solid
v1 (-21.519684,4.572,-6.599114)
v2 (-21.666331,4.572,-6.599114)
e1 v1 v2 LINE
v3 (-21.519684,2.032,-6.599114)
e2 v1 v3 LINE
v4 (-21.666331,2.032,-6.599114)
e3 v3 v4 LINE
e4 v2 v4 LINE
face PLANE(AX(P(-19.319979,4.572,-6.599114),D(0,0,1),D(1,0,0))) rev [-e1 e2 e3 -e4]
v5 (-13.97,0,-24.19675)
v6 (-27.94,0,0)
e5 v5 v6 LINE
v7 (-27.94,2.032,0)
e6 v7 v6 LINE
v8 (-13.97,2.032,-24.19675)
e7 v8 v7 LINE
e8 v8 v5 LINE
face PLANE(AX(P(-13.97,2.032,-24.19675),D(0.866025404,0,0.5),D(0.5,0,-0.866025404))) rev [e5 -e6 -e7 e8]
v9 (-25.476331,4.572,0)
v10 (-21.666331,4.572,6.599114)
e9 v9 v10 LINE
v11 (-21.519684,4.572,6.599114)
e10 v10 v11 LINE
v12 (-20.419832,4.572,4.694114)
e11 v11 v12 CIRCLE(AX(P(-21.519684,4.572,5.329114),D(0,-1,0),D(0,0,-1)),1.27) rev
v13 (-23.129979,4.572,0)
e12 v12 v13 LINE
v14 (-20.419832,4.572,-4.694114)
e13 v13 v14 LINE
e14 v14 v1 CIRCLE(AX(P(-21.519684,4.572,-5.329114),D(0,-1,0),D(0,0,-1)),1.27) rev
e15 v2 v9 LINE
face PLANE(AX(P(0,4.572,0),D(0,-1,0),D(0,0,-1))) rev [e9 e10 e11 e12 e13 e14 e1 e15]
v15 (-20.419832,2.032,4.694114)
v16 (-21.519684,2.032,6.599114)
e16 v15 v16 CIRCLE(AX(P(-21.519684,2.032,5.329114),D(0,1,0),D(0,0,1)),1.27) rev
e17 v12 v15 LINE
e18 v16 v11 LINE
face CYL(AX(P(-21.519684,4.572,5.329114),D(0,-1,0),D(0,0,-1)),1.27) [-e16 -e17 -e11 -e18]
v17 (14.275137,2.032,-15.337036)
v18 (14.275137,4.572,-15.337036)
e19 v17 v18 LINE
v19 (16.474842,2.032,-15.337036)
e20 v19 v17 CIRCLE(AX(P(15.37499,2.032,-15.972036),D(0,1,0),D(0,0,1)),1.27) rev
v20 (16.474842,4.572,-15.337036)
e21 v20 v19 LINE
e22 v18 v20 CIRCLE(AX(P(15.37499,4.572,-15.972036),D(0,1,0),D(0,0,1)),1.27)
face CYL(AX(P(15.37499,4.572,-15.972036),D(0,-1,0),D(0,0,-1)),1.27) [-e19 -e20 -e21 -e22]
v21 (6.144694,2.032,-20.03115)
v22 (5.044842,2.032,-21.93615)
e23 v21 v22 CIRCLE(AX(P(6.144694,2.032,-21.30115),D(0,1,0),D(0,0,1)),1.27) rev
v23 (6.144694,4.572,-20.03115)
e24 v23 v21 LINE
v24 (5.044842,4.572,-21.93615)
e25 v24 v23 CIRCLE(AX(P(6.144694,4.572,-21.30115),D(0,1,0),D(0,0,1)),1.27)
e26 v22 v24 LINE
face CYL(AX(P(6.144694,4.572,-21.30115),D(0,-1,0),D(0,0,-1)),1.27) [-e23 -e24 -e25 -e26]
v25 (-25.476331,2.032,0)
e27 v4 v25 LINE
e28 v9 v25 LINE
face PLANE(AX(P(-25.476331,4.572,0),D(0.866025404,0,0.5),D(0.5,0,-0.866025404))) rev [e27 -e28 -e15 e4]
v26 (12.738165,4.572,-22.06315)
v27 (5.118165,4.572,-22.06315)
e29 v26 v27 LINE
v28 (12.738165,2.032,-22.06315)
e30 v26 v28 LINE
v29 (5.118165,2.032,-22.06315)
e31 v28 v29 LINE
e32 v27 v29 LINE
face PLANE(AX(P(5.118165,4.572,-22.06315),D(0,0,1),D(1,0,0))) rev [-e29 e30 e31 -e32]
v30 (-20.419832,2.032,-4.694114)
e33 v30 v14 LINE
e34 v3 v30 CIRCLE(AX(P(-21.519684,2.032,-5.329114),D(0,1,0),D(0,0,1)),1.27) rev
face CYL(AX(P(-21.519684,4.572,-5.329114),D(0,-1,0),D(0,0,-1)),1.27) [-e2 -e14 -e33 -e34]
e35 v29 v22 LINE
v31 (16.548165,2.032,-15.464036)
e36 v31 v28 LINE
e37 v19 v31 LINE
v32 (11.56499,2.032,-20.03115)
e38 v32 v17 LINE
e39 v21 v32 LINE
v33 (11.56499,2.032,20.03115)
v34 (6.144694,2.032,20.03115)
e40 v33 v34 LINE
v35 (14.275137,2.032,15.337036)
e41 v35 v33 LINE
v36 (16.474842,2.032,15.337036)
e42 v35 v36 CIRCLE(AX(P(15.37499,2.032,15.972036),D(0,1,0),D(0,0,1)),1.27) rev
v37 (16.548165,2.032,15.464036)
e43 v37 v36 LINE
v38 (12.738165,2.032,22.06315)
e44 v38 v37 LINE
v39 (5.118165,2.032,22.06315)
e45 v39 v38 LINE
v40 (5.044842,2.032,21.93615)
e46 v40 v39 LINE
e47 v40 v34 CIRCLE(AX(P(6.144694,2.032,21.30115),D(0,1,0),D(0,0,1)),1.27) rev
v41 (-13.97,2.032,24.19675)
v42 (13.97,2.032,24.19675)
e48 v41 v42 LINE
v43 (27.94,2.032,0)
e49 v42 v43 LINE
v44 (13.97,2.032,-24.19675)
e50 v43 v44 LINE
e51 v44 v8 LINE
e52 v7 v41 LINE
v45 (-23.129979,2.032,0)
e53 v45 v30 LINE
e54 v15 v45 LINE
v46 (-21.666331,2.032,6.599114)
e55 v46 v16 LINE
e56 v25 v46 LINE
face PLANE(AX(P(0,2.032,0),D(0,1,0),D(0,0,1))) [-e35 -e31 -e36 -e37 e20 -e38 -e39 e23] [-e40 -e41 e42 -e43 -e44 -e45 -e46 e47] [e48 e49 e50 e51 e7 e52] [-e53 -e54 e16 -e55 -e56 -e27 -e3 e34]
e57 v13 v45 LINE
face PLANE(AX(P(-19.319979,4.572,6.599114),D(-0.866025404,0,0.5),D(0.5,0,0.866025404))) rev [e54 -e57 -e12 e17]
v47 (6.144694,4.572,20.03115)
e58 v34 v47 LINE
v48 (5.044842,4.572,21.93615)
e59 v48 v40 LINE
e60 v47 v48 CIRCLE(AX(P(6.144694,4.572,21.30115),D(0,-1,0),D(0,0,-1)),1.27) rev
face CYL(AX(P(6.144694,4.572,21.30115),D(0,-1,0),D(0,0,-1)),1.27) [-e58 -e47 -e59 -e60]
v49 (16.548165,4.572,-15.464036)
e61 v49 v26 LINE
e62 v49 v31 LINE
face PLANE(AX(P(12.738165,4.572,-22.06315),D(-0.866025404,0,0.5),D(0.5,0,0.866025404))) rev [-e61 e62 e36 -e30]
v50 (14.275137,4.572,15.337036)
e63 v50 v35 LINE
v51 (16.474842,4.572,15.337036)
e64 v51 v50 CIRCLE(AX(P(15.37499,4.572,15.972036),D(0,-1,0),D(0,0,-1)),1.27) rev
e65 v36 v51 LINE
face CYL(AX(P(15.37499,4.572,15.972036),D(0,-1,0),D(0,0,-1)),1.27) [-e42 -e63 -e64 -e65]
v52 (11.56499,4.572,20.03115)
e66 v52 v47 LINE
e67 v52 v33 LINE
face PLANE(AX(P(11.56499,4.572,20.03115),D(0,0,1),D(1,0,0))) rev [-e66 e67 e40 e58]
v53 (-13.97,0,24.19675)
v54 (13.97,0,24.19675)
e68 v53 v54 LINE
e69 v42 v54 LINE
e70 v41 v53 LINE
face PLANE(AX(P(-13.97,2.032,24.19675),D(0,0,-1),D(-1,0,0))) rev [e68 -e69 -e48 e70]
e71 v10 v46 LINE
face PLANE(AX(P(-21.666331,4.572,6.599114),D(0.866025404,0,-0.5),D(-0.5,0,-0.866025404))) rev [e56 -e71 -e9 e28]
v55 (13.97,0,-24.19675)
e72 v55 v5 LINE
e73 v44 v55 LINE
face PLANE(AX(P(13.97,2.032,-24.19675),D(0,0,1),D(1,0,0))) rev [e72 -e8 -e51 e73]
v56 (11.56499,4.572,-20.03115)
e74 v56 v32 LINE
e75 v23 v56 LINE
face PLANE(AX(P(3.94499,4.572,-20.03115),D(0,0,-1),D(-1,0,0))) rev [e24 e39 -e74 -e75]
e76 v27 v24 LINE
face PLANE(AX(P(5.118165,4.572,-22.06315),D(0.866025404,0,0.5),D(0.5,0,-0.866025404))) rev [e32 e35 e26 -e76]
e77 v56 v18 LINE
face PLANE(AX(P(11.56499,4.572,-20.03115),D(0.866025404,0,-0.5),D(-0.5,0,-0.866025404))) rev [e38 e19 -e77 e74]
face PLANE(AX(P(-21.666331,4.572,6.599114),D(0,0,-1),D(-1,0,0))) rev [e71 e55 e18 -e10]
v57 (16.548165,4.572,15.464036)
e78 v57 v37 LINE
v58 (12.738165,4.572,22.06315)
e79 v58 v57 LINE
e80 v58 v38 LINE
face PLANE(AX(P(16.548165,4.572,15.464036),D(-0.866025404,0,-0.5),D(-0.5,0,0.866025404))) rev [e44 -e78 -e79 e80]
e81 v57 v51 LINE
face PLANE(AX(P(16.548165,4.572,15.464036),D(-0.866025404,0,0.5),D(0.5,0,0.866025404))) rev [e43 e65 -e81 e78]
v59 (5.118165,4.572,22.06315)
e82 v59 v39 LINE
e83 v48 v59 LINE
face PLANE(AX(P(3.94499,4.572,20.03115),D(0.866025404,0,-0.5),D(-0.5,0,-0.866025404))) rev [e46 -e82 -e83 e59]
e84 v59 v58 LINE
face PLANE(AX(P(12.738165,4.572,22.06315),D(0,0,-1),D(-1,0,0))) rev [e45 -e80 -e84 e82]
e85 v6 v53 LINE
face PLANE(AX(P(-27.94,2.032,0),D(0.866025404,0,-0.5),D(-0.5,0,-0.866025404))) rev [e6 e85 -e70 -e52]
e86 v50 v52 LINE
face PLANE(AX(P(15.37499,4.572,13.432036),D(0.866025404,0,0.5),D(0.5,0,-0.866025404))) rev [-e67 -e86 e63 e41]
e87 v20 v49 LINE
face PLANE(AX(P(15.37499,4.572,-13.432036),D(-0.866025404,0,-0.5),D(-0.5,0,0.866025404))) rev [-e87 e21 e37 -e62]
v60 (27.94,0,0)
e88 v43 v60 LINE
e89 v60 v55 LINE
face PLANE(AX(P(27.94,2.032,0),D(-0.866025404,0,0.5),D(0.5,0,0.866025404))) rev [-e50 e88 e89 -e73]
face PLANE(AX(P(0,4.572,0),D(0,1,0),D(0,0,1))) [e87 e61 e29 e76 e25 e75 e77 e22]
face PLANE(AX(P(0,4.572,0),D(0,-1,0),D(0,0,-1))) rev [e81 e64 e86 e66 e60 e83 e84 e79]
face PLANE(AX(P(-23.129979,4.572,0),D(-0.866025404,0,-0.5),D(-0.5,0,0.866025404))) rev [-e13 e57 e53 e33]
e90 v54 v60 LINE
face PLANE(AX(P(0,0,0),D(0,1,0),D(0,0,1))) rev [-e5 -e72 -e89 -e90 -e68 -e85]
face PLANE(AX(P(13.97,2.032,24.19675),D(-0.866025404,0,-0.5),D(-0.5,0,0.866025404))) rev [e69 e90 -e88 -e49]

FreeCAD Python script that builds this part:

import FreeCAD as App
import Part
import Sketcher

V = App.Vector
Q = App.Units.Quantity


def edges_at(feature, points):
    """Names of the edges that pass closest to the given points."""
    edges = feature.Shape.Edges
    near = lambda p: min(range(len(edges)), key=lambda i: edges[i].distToShape(Part.Vertex(*p))[0])
    return sorted({f"Edge{near(p) + 1}" for p in points})

doc = App.newDocument("Part")
params = doc.addObject("Spreadsheet::Sheet", "Params")
for row, (alias, value) in enumerate([
    ("sketch1_width", "1.1 in"),
    ("sketch1_length", "1.1 in"),
    ("pad1_length", "0.08 in"),
    ("sketch2_width", "0.3 in"),
    ("sketch2_length", "0.3 in"),
    ("pad2_length", "0.1 in"),
    ("fillet_radius", "0.05 in"),
], start=1):
    params.set(f"A{row}", alias)
    params.set(f"B{row}", "=" + value)
    params.setAlias(f"B{row}", alias)

body = doc.addObject("PartDesign::Body", "Body")

sketch1 = body.newObject("Sketcher::SketchObject", "Sketch")
sketch1.AttachmentSupport = (doc.getObject("XZ_Plane"), [""])
sketch1.MapMode = "FlatFace"
sketch1.addGeometry([
    Part.LineSegment(V(28, 0, 0), V(14, -24, 0)),
    Part.LineSegment(V(14, -24, 0), V(-14, -24, 0)),
    Part.LineSegment(V(-14, -24, 0), V(-28, 0, 0)),
    Part.LineSegment(V(-28, 0, 0), V(-14, 24, 0)),
    Part.LineSegment(V(-14, 24, 0), V(14, 24, 0)),
    Part.LineSegment(V(14, 24, 0), V(28, 0, 0)),
], False)
sketch1.addConstraint([
    Sketcher.Constraint("Coincident", 0, 2, 1, 1),
    Sketcher.Constraint("Coincident", 1, 2, 2, 1),
    Sketcher.Constraint("Coincident", 2, 2, 3, 1),
    Sketcher.Constraint("Coincident", 3, 2, 4, 1),
    Sketcher.Constraint("Coincident", 4, 2, 5, 1),
    Sketcher.Constraint("Coincident", 5, 2, 0, 1),
    Sketcher.Constraint("Horizontal", 1),
    Sketcher.Constraint("Horizontal", 4),
    Sketcher.Constraint("Symmetric", 0, 2, 3, 2, -1, 1),
    Sketcher.Constraint("Symmetric", 2, 2, 5, 2, -1, 1),
    Sketcher.Constraint("PointOnObject", 2, 2, -1),
    Sketcher.Constraint("Parallel", 2, 5),
    Sketcher.Constraint("Vertical", 1, 2, 3, 2),
    Sketcher.Constraint("DistanceX", 1, 2, 1, 1, Q("1.1 in")),
    Sketcher.Constraint("Angle", 0, Q("-120 deg")),
    Sketcher.Constraint("Distance", 0, Q("1.1 in")),
])
sketch1.setExpression("Constraints[13]", "Params.sketch1_width")
sketch1.setExpression("Constraints[15]", "Params.sketch1_length")
pad1 = body.newObject("PartDesign::Pad", "Pad")
pad1.Profile = sketch1
pad1.setExpression("Length", "Params.pad1_length")
pad1.Reversed = True

sketch2 = body.newObject("Sketcher::SketchObject", "Sketch001")
sketch2.AttachmentSupport = (doc.getObject("XZ_Plane"), [""])
sketch2.MapMode = "FlatFace"
sketch2.AttachmentOffset = App.Placement(V(0, 0, -0.08 * 25.4), App.Rotation())
sketch2.addGeometry([
    Part.LineSegment(V(11.6, 20, 0), V(3.9, 20, 0)),
    Part.LineSegment(V(3.9, 20, 0), V(5.1, 22.1, 0)),
    Part.LineSegment(V(5.1, 22.1, 0), V(12.7, 22.1, 0)),
    Part.LineSegment(V(12.7, 22.1, 0), V(16.5, 15.5, 0)),
    Part.LineSegment(V(16.5, 15.5, 0), V(15.4, 13.4, 0)),
    Part.LineSegment(V(15.4, 13.4, 0), V(11.6, 20, 0)),
    Part.LineSegment(V(-23.1, 0, 0), V(-19.3, -6.6, 0)),
    Part.LineSegment(V(-19.3, -6.6, 0), V(-21.7, -6.6, 0)),
    Part.LineSegment(V(-21.7, -6.6, 0), V(-25.5, 0, 0)),
    Part.LineSegment(V(-25.5, 0, 0), V(-21.7, 6.6, 0)),
    Part.LineSegment(V(-21.7, 6.6, 0), V(-19.3, 6.6, 0)),
    Part.LineSegment(V(-19.3, 6.6, 0), V(-23.1, 0, 0)),
    Part.LineSegment(V(5.1, -22.1, 0), V(3.9, -20, 0)),
    Part.LineSegment(V(3.9, -20, 0), V(11.6, -20, 0)),
    Part.LineSegment(V(11.6, -20, 0), V(15.4, -13.4, 0)),
    Part.LineSegment(V(15.4, -13.4, 0), V(16.5, -15.5, 0)),
    Part.LineSegment(V(16.5, -15.5, 0), V(12.7, -22.1, 0)),
    Part.LineSegment(V(12.7, -22.1, 0), V(5.1, -22.1, 0)),
], False)
sketch2.addConstraint([
    Sketcher.Constraint("Coincident", 0, 2, 1, 1),
    Sketcher.Constraint("Coincident", 1, 2, 2, 1),
    Sketcher.Constraint("Coincident", 2, 2, 3, 1),
    Sketcher.Constraint("Coincident", 3, 2, 4, 1),
    Sketcher.Constraint("Coincident", 4, 2, 5, 1),
    Sketcher.Constraint("Coincident", 5, 2, 0, 1),
    Sketcher.Constraint("Coincident", 6, 2, 7, 1),
    Sketcher.Constraint("Coincident", 7, 2, 8, 1),
    Sketcher.Constraint("Coincident", 8, 2, 9, 1),
    Sketcher.Constraint("Coincident", 9, 2, 10, 1),
    Sketcher.Constraint("Coincident", 10, 2, 11, 1),
    Sketcher.Constraint("Coincident", 11, 2, 6, 1),
    Sketcher.Constraint("Coincident", 12, 2, 13, 1),
    Sketcher.Constraint("Coincident", 13, 2, 14, 1),
    Sketcher.Constraint("Coincident", 14, 2, 15, 1),
    Sketcher.Constraint("Coincident", 15, 2, 16, 1),
    Sketcher.Constraint("Coincident", 16, 2, 17, 1),
    Sketcher.Constraint("Coincident", 17, 2, 12, 1),
    Sketcher.Constraint("Horizontal", 0),
    Sketcher.Constraint("Horizontal", 2),
    Sketcher.Constraint("Horizontal", 7),
    Sketcher.Constraint("Horizontal", 10),
    Sketcher.Constraint("Horizontal", 13),
    Sketcher.Constraint("Horizontal", 17),
    Sketcher.Constraint("Symmetric", 7, 2, 9, 2, -1),
    Sketcher.Constraint("Symmetric", 0, 2, 12, 2, -1),
    Sketcher.Constraint("Symmetric", 4, 2, 14, 2, -1),
    Sketcher.Constraint("Symmetric", 3, 2, 15, 2, -1),
    Sketcher.Constraint("Symmetric", 2, 2, 16, 2, -1),
    Sketcher.Constraint("PointOnObject", 8, 2, -1),
    Sketcher.Constraint("PointOnObject", 11, 2, -1),
    Sketcher.Constraint("Parallel", 1, 4),
    Sketcher.Constraint("Parallel", 3, 5),
    Sketcher.Constraint("Parallel", 5, 6),
    Sketcher.Constraint("Parallel", 6, 8),
    Sketcher.Constraint("Parallel", 4, 9),
    Sketcher.Constraint("Parallel", 9, 11),
    Sketcher.Constraint("Parallel", 8, 12),
    Sketcher.Constraint("Parallel", 11, 14),
    Sketcher.Constraint("Equal", 0, 2),
    Sketcher.Constraint("Equal", 5, 6),
    Sketcher.Constraint("DistanceX", 0, 2, 0, 1, Q("0.3 in")),
    Sketcher.Constraint("Angle", 1, Q("60 deg")),
    Sketcher.Constraint("Distance", 3, Q("0.3 in")),
    Sketcher.Constraint("DistanceY", 0, 2, 1, 2, Q("0.08 in")),
    Sketcher.Constraint("DistanceX", 7, 2, 7, 1, 2.346351),
    Sketcher.Constraint("DistanceX", -1, 1, 0, 2, 3.94499),
    Sketcher.Constraint("DistanceY", -1, 1, 0, 2, 20.03115),
    Sketcher.Constraint("DistanceX", 6, 2, -1, 1, 19.319979),
])
sketch2.setExpression("Constraints[41]", "Params.sketch2_width")
sketch2.setExpression("Constraints[43]", "Params.sketch2_length")
pad2 = body.newObject("PartDesign::Pad", "Pad001")
pad2.Profile = sketch2
pad2.setExpression("Length", "Params.pad2_length")
pad2.Reversed = True
doc.recompute()

fillet = body.newObject("PartDesign::Fillet", "Fillet")
fillet.Base = (pad2, edges_at(pad2, [
    (15.375, 3.302, -13.432),
    (3.945, 3.302, -20.031),
    (15.375, 3.302, 13.432),
    (3.945, 3.302, 20.031),
    (-19.32, 3.302, 6.599),
    (-19.32, 3.302, -6.599),
]))
fillet.setExpression("Radius", "Params.fillet_radius")

doc.recompute()
